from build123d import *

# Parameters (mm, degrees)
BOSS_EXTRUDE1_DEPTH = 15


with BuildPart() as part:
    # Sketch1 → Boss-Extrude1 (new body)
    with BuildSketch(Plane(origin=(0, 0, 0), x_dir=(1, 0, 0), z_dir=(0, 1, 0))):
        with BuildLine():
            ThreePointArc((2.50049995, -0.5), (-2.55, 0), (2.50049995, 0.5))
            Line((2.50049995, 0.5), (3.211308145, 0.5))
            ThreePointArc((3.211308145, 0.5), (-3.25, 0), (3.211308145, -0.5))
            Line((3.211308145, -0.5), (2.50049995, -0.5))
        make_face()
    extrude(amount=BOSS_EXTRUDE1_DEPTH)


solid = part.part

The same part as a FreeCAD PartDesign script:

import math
import FreeCAD as App
import Part
import Sketcher
Q = App.Units.Quantity

doc = App.newDocument("Part")
body = doc.addObject("PartDesign::Body", "Body")

# Sketch on XZ plane
sketch1 = doc.addObject("Sketcher::SketchObject", "Sketch")
body.addObject(sketch1)
sketch1.AttachmentSupport = (doc.XZ_Plane, [""])
sketch1.MapMode = "FlatFace"
sketch1.addGeometry(Part.ArcOfCircle(Part.Circle(App.Vector(0, 0, 0), App.Vector(0, 0, 1), 2.55), math.radians(11.307729), math.radians(348.692271)), False)
sketch1.addGeometry(Part.LineSegment(App.Vector(2.5005, -0.5, 0), App.Vector(3.211308, -0.5, 0)), False)
sketch1.addGeometry(Part.ArcOfCircle(Part.Circle(App.Vector(0, 0, 0), App.Vector(0, 0, 1), 3.25), math.radians(8.849883), math.radians(351.150117)), False)
sketch1.addGeometry(Part.LineSegment(App.Vector(3.211308, 0.5, 0), App.Vector(2.5005, 0.5, 0)), False)
sketch1.addConstraint(Sketcher.Constraint("Coincident", 0, 2, 1, 1))
sketch1.addConstraint(Sketcher.Constraint("Coincident", 1, 2, 2, 2))
sketch1.addConstraint(Sketcher.Constraint("Coincident", 2, 1, 3, 1))
sketch1.addConstraint(Sketcher.Constraint("Coincident", 3, 2, 0, 1))
sketch1.addConstraint(Sketcher.Constraint("Horizontal", 1))
sketch1.addConstraint(Sketcher.Constraint("Horizontal", 3))
sketch1.addConstraint(Sketcher.Constraint("Coincident", 0, 3, -1, 1))
sketch1.addConstraint(Sketcher.Constraint("Coincident", 2, 3, -1, 1))
sketch1.addConstraint(Sketcher.Constraint("Vertical", 1, 2, 2, 1))
sketch1.addConstraint(Sketcher.Constraint("Radius", 0, Q("2.55 mm")))
sketch1.addConstraint(Sketcher.Constraint("Radius", 2, Q("3.25 mm")))
sketch1.addConstraint(Sketcher.Constraint("DistanceY", 1, 2, 2, 1, Q("1 mm")))
pad1 = doc.addObject("PartDesign::Pad", "Pad")
body.addObject(pad1)
pad1.Profile = sketch1
pad1.Length = 15
pad1.Reversed = True

doc.recompute()
